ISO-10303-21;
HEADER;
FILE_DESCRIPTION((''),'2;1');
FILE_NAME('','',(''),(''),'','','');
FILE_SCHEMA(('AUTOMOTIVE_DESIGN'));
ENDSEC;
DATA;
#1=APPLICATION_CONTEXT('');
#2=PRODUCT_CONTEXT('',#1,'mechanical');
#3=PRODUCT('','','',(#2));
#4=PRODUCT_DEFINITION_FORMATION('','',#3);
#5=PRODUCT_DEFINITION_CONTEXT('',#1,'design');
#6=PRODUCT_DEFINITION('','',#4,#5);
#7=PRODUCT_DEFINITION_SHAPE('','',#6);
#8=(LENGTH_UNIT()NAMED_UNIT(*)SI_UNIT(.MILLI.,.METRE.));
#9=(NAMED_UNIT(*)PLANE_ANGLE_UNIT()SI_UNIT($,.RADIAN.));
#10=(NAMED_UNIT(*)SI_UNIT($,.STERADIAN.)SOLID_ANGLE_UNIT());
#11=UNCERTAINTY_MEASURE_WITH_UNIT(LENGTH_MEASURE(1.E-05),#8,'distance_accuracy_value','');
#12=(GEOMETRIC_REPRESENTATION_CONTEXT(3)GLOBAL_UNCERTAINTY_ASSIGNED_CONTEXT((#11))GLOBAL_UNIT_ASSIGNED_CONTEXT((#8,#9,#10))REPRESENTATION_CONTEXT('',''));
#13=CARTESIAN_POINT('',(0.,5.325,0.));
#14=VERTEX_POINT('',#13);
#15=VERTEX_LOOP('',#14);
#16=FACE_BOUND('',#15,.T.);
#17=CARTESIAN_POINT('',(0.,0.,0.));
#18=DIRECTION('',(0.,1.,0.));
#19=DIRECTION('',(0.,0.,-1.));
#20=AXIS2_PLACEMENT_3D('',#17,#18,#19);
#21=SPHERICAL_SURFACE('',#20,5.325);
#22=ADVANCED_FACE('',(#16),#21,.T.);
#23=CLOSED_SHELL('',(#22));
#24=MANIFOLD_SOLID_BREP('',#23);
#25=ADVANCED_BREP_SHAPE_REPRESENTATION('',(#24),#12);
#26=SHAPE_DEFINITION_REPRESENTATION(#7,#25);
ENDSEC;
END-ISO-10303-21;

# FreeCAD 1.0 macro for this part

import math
import FreeCAD as App
import Part
import Sketcher

V = App.Vector

doc = App.newDocument("Part")
body = doc.addObject("PartDesign::Body", "Body")

sketch1 = doc.addObject("Sketcher::SketchObject", "Sketch")
body.addObject(sketch1)
sketch1.AttachmentSupport = (doc.YZ_Plane, [""])
sketch1.MapMode = "FlatFace"
sketch1.addGeometry([
    Part.LineSegment(V(5.325, 0, 0), V(-5.325, 0, 0)),
    Part.ArcOfCircle(Part.Circle(V(0, 0, 0), V(0, 0, 1), 5.325), math.radians(180), math.radians(360)),
], False)
sketch1.addConstraint([
    Sketcher.Constraint("Coincident", 0, 1, 1, 2),
    Sketcher.Constraint("Coincident", 1, 1, 0, 2),
    Sketcher.Constraint("Horizontal", 0),
    Sketcher.Constraint("Coincident", 1, 3, -1, 1),
    Sketcher.Constraint("PointOnObject", 0, 1, -1),
    Sketcher.Constraint("Radius", 1, 5.325),
])
revolution = doc.addObject("PartDesign::Revolution", "Revolution")
body.addObject(revolution)
revolution.Profile = sketch1
revolution.ReferenceAxis = (sketch1, ["H_Axis"])
revolution.Angle = 360

doc.recompute()
